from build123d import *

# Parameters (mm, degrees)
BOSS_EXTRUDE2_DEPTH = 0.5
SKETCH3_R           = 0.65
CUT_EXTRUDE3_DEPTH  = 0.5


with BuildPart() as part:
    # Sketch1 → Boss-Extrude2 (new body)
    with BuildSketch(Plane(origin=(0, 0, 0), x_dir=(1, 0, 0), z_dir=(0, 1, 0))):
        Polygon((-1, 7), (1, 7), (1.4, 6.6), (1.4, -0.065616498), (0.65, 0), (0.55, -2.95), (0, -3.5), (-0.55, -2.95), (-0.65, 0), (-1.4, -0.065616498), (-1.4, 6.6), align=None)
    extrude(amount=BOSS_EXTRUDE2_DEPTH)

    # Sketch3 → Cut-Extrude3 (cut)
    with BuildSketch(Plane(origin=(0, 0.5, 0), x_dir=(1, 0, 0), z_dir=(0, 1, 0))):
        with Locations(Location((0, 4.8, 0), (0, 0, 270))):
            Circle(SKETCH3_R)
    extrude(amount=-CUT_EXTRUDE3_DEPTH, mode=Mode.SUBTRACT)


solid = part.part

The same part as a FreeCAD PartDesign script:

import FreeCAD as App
import Part
import Sketcher
from FreeCAD import Vector
Q = App.Units.Quantity


def add_polygon(sketch, points):
    """Adds a closed chain of lines whose ends are joined by coincident constraints."""
    first, n = sketch.GeometryCount, len(points)
    for a, b in zip(points, points[1:] + points[:1]):
        sketch.addGeometry(Part.LineSegment(App.Vector(*a, 0), App.Vector(*b, 0)), False)
    for i in range(n):
        sketch.addConstraint(Sketcher.Constraint("Coincident", first + i, 2, first + (i + 1) % n, 1))

doc = App.newDocument("Part")
body = doc.addObject("PartDesign::Body", "Body")

# Sketch on XZ plane
sketch1 = doc.addObject("Sketcher::SketchObject", "Sketch")
body.addObject(sketch1)
sketch1.AttachmentSupport = (doc.XZ_Plane, [""])
sketch1.MapMode = "FlatFace"
add_polygon(sketch1, [(1, -7), (-1, -7), (-1.4, -6.6), (-1.4, 0.1), (-0.7, 0), (-0.6, 3), (0, 3.5), (0.6, 3), (0.7, 0), (1.4, 0.1), (1.4, -6.6)])  # lines 0-10
sketch1.addConstraint([
    Sketcher.Constraint("Horizontal", 0),
    Sketcher.Constraint("Vertical", 2),
    Sketcher.Constraint("Vertical", 9),
    Sketcher.Constraint("Symmetric", 3, 2, 7, 2, -1, 1),
    Sketcher.Constraint("Symmetric", 4, 2, 6, 2, -2),
    Sketcher.Constraint("Symmetric", 2, 2, 8, 2, -2),
    Sketcher.Constraint("PointOnObject", 3, 2, -1),
    Sketcher.Constraint("PointOnObject", 5, 2, -2),
    Sketcher.Constraint("Perpendicular", 1, 5),
    Sketcher.Constraint("Perpendicular", 5, 6),
    Sketcher.Constraint("Perpendicular", 6, 10),
    Sketcher.Constraint("Horizontal", 1, 2, 9, 2),
    Sketcher.Constraint("DistanceX", 0, 2, 0, 1, Q("2 mm")),
    Sketcher.Constraint("Angle", 3, Q("-5 deg")),
    Sketcher.Constraint("DistanceY", 0, 2, -1, 1, Q("7 mm")),
    Sketcher.Constraint("DistanceX", 1, 2, -1, 1, Q("1.4 mm")),
    Sketcher.Constraint("DistanceY", -1, 1, 5, 2, Q("3.5 mm")),
    Sketcher.Constraint("DistanceX", 3, 2, 4, 2, Q("0.1 mm")),
    Sketcher.Constraint("DistanceX", 4, 2, 6, 2, Q("1.1 mm")),
])
pad1 = doc.addObject("PartDesign::Pad", "Pad")
body.addObject(pad1)
pad1.Profile = sketch1
pad1.Length = 0.5
pad1.Reversed = True

# Sketch on XZ plane
sketch2 = doc.addObject("Sketcher::SketchObject", "Sketch001")
body.addObject(sketch2)
sketch2.AttachmentSupport = (doc.XZ_Plane, [""])
sketch2.MapMode = "FlatFace"
sketch2.AttachmentOffset = App.Placement(Vector(0, 0, -0.5), App.Rotation())
sketch2.addGeometry(Part.Circle(Vector(0, -4.8, 0), Vector(0, 0, 1), 0.7), False)
sketch2.addConstraint([
    Sketcher.Constraint("PointOnObject", 0, 3, -2),
    Sketcher.Constraint("Diameter", 0, Q("1.3 mm")),
    Sketcher.Constraint("DistanceY", 0, 3, -1, 1, Q("4.8 mm")),
])
pocket1 = doc.addObject("PartDesign::Pocket", "Pocket")
body.addObject(pocket1)
pocket1.Profile = sketch2
pocket1.Length = 0.5
pocket1.Reversed = True

doc.recompute()
